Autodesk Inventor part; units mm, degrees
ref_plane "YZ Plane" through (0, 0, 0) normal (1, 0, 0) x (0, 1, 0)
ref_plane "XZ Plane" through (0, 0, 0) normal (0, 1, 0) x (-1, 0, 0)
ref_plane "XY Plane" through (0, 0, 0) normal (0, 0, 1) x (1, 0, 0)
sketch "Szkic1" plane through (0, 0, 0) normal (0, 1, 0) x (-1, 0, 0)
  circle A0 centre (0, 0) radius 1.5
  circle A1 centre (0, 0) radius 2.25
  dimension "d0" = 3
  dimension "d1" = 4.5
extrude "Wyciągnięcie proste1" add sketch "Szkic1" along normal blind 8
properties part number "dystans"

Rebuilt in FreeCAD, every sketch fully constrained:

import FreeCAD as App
import Part
import Sketcher

V = App.Vector
Q = App.Units.Quantity

doc = App.newDocument("Part")
body = doc.addObject("PartDesign::Body", "Body")

# Sketch on XZ plane
sketch1 = body.newObject("Sketcher::SketchObject", "Sketch")
sketch1.AttachmentSupport = (doc.getObject("XZ_Plane"), [""])
sketch1.MapMode = "FlatFace"
sketch1.addGeometry([
    Part.Circle(V(0, 0, 0), V(0, 0, 1), 2.2),
    Part.Circle(V(0, 0, 0), V(0, 0, 1), 1.5),
], False)
sketch1.addConstraint([
    Sketcher.Constraint("Coincident", 0, 3, -1, 1),
    Sketcher.Constraint("Coincident", 1, 3, -1, 1),
    Sketcher.Constraint("Diameter", 1, Q("3 mm")),
    Sketcher.Constraint("Diameter", 0, Q("4.5 mm")),
])
pad1 = body.newObject("PartDesign::Pad", "Pad")
pad1.Profile = sketch1
pad1.Length = 8
pad1.Reversed = True

doc.recompute()
